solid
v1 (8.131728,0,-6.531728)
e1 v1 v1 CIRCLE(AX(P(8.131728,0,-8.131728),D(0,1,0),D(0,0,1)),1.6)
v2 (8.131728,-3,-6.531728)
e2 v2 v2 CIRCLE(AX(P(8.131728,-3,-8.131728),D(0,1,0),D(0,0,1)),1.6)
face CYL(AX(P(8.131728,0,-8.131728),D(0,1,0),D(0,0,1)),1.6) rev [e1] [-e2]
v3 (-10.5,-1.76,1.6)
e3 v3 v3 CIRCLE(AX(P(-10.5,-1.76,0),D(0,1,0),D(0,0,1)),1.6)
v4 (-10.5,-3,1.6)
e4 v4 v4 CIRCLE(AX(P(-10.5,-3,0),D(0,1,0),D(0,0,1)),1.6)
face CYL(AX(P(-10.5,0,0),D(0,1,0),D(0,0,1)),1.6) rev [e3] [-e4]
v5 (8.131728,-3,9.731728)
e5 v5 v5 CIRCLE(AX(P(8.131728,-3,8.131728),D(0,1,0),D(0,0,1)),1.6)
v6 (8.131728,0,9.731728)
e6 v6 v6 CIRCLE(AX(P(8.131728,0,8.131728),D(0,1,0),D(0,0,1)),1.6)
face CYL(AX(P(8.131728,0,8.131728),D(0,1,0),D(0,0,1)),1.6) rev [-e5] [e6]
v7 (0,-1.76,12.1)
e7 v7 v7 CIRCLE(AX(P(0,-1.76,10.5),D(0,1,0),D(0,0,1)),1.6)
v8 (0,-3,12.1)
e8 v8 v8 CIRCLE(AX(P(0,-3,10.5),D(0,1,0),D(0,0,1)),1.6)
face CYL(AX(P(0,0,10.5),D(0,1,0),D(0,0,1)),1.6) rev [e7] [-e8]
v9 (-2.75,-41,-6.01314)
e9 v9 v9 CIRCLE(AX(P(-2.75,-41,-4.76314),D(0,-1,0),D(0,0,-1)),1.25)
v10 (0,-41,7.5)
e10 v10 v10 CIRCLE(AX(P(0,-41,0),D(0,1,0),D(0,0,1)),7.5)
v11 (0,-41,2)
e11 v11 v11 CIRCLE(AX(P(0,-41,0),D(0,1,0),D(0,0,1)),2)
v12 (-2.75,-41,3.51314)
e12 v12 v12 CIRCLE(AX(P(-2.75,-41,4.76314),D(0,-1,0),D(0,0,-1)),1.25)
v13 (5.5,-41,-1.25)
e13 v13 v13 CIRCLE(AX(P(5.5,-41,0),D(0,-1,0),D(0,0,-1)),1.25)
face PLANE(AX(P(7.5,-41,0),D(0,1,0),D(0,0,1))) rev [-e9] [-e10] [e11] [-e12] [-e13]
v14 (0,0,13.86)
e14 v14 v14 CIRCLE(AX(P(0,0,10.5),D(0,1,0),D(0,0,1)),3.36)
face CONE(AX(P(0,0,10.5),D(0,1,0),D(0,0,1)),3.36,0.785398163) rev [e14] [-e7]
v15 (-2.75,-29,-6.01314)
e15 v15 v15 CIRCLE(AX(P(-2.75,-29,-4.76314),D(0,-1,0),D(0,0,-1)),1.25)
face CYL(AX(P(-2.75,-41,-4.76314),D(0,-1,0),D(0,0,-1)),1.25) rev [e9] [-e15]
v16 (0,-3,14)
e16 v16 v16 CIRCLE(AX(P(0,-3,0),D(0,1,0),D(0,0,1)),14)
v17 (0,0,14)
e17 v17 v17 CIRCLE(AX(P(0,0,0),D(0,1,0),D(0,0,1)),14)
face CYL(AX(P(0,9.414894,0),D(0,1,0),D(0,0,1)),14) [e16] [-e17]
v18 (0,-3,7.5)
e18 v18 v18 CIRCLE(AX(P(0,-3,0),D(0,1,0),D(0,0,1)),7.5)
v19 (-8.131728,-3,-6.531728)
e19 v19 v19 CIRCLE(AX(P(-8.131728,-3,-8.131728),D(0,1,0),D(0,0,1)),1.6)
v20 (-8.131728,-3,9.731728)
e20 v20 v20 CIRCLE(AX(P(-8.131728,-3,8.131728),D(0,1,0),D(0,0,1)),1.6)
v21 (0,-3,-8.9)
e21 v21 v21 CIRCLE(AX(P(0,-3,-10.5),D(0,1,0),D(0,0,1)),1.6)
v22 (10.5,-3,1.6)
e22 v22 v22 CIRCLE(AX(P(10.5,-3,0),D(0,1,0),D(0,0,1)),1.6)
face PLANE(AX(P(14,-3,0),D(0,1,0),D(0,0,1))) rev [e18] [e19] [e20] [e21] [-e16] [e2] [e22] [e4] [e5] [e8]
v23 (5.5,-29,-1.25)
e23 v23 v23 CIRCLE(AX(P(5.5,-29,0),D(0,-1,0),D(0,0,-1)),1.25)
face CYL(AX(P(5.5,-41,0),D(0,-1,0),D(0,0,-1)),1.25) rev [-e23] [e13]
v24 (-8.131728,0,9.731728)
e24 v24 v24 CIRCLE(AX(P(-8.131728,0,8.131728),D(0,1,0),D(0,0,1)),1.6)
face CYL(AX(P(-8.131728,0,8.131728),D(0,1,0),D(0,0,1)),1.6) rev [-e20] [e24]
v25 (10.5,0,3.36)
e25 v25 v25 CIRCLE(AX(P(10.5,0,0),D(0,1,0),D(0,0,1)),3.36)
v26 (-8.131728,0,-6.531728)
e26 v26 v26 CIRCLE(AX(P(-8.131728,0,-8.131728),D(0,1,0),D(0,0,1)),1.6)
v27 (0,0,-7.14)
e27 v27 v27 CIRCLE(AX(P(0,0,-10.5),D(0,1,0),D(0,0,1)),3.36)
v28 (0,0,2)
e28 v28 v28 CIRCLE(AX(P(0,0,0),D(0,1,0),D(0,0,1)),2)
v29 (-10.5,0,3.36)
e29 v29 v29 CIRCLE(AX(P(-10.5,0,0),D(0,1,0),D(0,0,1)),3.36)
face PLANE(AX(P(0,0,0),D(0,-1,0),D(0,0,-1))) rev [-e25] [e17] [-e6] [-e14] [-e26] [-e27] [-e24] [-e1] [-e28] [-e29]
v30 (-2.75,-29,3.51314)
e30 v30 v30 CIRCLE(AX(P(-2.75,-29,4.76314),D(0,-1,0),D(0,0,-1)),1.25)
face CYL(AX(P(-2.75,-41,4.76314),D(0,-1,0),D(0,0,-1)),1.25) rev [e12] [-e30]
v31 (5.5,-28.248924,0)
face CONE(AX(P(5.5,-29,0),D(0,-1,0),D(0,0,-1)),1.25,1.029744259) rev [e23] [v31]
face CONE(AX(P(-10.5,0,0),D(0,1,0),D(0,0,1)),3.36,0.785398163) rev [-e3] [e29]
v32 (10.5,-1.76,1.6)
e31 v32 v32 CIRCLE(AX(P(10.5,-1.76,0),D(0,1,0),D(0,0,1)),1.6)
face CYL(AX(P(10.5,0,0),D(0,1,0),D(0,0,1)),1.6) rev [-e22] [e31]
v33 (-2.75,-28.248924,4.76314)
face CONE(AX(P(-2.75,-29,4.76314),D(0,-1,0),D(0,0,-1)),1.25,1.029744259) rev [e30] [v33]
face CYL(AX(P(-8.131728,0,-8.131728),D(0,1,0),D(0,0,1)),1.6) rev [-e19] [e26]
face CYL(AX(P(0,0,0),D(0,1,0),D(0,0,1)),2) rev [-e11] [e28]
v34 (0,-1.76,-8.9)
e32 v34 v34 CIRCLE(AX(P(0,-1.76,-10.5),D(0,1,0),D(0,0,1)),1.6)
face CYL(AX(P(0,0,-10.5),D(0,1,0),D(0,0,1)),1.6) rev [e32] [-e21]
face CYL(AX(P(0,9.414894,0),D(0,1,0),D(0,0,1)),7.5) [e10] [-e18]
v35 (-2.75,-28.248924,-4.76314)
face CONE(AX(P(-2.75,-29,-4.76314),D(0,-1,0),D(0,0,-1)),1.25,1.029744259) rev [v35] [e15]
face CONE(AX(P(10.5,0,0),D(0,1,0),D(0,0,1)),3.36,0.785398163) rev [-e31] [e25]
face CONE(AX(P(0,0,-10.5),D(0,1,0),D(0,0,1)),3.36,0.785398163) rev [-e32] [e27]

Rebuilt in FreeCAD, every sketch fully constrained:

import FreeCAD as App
import Part
import Sketcher

V = App.Vector
Q = App.Units.Quantity

doc = App.newDocument("Part")
params = doc.addObject("Spreadsheet::Sheet", "Params")
for row, (alias, value) in enumerate([
    ("sketch1_width", "14 mm"),
    ("sketch1_height", "41 mm"),
    ("sketch1_height2", "38 mm"),
    ("sketch1_width2", "7.5 mm"),
    ("revolution_angle", "360 deg"),
    ("sketch2_diameter", "4 mm"),
    ("hole_diameter", "4 mm"),
    ("hole_depth", "41 mm"),
    ("sketch3_width", "12 mm"),
    ("sketch3_height", "1.25 mm"),
    ("groove_angle", "360 deg"),
    ("sketch4_height", "1.6 mm"),
    ("sketch4_height2", "3.36 mm"),
    ("groove2_angle", "360 deg"),
    ("sketch5_diameter", "3.2 mm"),
    ("hole2_diameter", "3.2 mm"),
    ("hole2_depth", "3.001 mm"),
], start=1):
    params.set(f"A{row}", alias)
    params.set(f"B{row}", "=" + value)
    params.setAlias(f"B{row}", alias)

body = doc.addObject("PartDesign::Body", "Body")

# Sketch on XY plane
sketch1 = doc.addObject("Sketcher::SketchObject", "Sketch")
body.addObject(sketch1)
sketch1.AttachmentSupport = (doc.XY_Plane, [""])
sketch1.MapMode = "FlatFace"
sketch1.addGeometry([
    Part.LineSegment(V(14, 0, 0), V(0, 0, 0)),  # 0
    Part.LineSegment(V(0, 0, 0), V(0, -41, 0)),  # 1
    Part.LineSegment(V(0, -41, 0), V(7.5, -41, 0)),  # 2
    Part.LineSegment(V(7.5, -41, 0), V(7.5, -3, 0)),  # 3
    Part.LineSegment(V(7.5, -3, 0), V(14, -3, 0)),  # 4
    Part.LineSegment(V(14, -3, 0), V(14, 0, 0)),  # 5
], False)
sketch1.addConstraint([
    Sketcher.Constraint("Coincident", 0, 2, 1, 1),
    Sketcher.Constraint("Coincident", 1, 2, 2, 1),
    Sketcher.Constraint("Coincident", 2, 2, 3, 1),
    Sketcher.Constraint("Coincident", 3, 2, 4, 1),
    Sketcher.Constraint("Coincident", 4, 2, 5, 1),
    Sketcher.Constraint("Coincident", 5, 2, 0, 1),
    Sketcher.Constraint("Horizontal", 0),
    Sketcher.Constraint("Vertical", 1),
    Sketcher.Constraint("Horizontal", 2),
    Sketcher.Constraint("Vertical", 3),
    Sketcher.Constraint("Horizontal", 4),
    Sketcher.Constraint("Vertical", 5),
    Sketcher.Constraint("Coincident", 0, 2, -1, 1),
    Sketcher.Constraint("DistanceX", 0, 2, 0, 1, 14.0),
    Sketcher.Constraint("DistanceY", 1, 2, 1, 1, 41.0),
    Sketcher.Constraint("DistanceY", 3, 1, 3, 2, 38.0),
    Sketcher.Constraint("DistanceX", 2, 1, 2, 2, 7.5),
])
sketch1.setExpression("Constraints[13]", "Params.sketch1_width")
sketch1.setExpression("Constraints[14]", "Params.sketch1_height")
sketch1.setExpression("Constraints[15]", "Params.sketch1_height2")
sketch1.setExpression("Constraints[16]", "Params.sketch1_width2")
revolution = doc.addObject("PartDesign::Revolution", "Revolution")
body.addObject(revolution)
revolution.Profile = sketch1
revolution.ReferenceAxis = (sketch1, ["V_Axis"])
revolution.setExpression("Angle", "Params.revolution_angle")

# Sketch on XZ plane
sketch2 = doc.addObject("Sketcher::SketchObject", "Sketch001")
body.addObject(sketch2)
sketch2.AttachmentSupport = (doc.XZ_Plane, [""])
sketch2.MapMode = "FlatFace"
sketch2.addGeometry(Part.Circle(V(0, 0, 0), V(0, 0, 1), 2), False)
sketch2.addConstraint([
    Sketcher.Constraint("Coincident", 0, 3, -1, 1),
    Sketcher.Constraint("Diameter", 0, 4.0),
])
sketch2.setExpression("Constraints[1]", "Params.sketch2_diameter")
doc.recompute()
hole = doc.addObject("PartDesign::Hole", "Hole")
body.addObject(hole)
hole.Profile = sketch2
hole.ThreadType = "None"
hole.setExpression("Diameter", "Params.hole_diameter")
hole.DepthType = "Dimension"
hole.setExpression("Depth", "Params.hole_depth")
hole.DrillPoint = "Flat"
hole.Reversed = True

# Sketch on YZ plane
sketch3 = doc.addObject("Sketcher::SketchObject", "Sketch002")
body.addObject(sketch3)
sketch3.AttachmentSupport = (doc.YZ_Plane, [""])
sketch3.MapMode = "FlatFace"
sketch3.AttachmentOffset = App.Placement(V(0, 0, 5.5), App.Rotation())
sketch3.addGeometry([
    Part.LineSegment(V(-28.248924, 0, 0), V(-41, 0, 0)),
    Part.LineSegment(V(-41, 0, 0), V(-41, -1.25, 0)),
    Part.LineSegment(V(-41, -1.25, 0), V(-29, -1.25, 0)),
    Part.LineSegment(V(-29, -1.25, 0), V(-28.248924, 0, 0)),
], False)
sketch3.addConstraint([
    Sketcher.Constraint("Coincident", 0, 2, 1, 1),
    Sketcher.Constraint("Coincident", 1, 2, 2, 1),
    Sketcher.Constraint("Coincident", 2, 2, 3, 1),
    Sketcher.Constraint("Coincident", 3, 2, 0, 1),
    Sketcher.Constraint("Horizontal", 0),
    Sketcher.Constraint("Vertical", 1),
    Sketcher.Constraint("Horizontal", 2),
    Sketcher.Constraint("PointOnObject", 0, 2, -1),
    Sketcher.Constraint("DistanceX", 2, 1, 2, 2, 12.0),
    Sketcher.Constraint("Angle", 3, Q("59 deg")),
    Sketcher.Constraint("DistanceX", 0, 2, -1, 1, 41.0),
    Sketcher.Constraint("DistanceY", 1, 2, 1, 1, 1.25),
])
sketch3.setExpression("Constraints[8]", "Params.sketch3_width")
sketch3.setExpression("Constraints[11]", "Params.sketch3_height")
groove = doc.addObject("PartDesign::Groove", "Groove")
body.addObject(groove)
groove.Profile = sketch3
groove.ReferenceAxis = (sketch3, ["H_Axis"])
groove.setExpression("Angle", "Params.groove_angle")
doc.recompute()

polarpattern = doc.addObject("PartDesign::PolarPattern", "PolarPattern")
body.addObject(polarpattern)
polarpattern.Originals = [groove]
polarpattern.Axis = (doc.Y_Axis, [""])
polarpattern.Angle = 360
polarpattern.Occurrences = 3
body.Tip = polarpattern

# Sketch on YZ plane
sketch4 = doc.addObject("Sketcher::SketchObject", "Sketch003")
body.addObject(sketch4)
sketch4.AttachmentSupport = (doc.YZ_Plane, [""])
sketch4.MapMode = "FlatFace"
sketch4.addGeometry([
    Part.LineSegment(V(-3.001, -10.5, 0), V(0, -10.5, 0)),  # 0
    Part.LineSegment(V(0, -10.5, 0), V(0, -7.14, 0)),  # 1
    Part.LineSegment(V(0, -7.14, 0), V(-1.76, -8.9, 0)),  # 2
    Part.LineSegment(V(-1.76, -8.9, 0), V(-3.001, -8.9, 0)),  # 3
    Part.LineSegment(V(-3.001, -8.9, 0), V(-3.001, -10.5, 0)),  # 4
], False)
sketch4.addGeometry(Part.LineSegment(V(0, -10.5, 0), V(-3.001, -10.5, 0)), True)  # axis
sketch4.addConstraint([
    Sketcher.Constraint("Coincident", 0, 2, 1, 1),
    Sketcher.Constraint("Coincident", 1, 2, 2, 1),
    Sketcher.Constraint("Coincident", 2, 2, 3, 1),
    Sketcher.Constraint("Coincident", 3, 2, 4, 1),
    Sketcher.Constraint("Coincident", 4, 2, 0, 1),
    Sketcher.Constraint("Horizontal", 0),
    Sketcher.Constraint("Vertical", 1),
    Sketcher.Constraint("Horizontal", 3),
    Sketcher.Constraint("Vertical", 4),
    Sketcher.Constraint("Horizontal", 5),
    Sketcher.Constraint("Coincident", 5, 1, 0, 2),
    Sketcher.Constraint("PointOnObject", 0, 2, -2),
    Sketcher.Constraint("Vertical", 3, 2, 5, 2),
    Sketcher.Constraint("Angle", 2, Q("-135 deg")),
    Sketcher.Constraint("DistanceY", 4, 2, 4, 1, 1.6),
    Sketcher.Constraint("DistanceY", 1, 1, 1, 2, 3.36),
    Sketcher.Constraint("DistanceY", 0, 2, -1, 1, 10.5),
    Sketcher.Constraint("DistanceX", 0, 1, 0, 2, 3.001),
])
sketch4.setExpression("Constraints[14]", "Params.sketch4_height")
sketch4.setExpression("Constraints[15]", "Params.sketch4_height2")
groove2 = doc.addObject("PartDesign::Groove", "Groove001")
body.addObject(groove2)
groove2.Profile = sketch4
groove2.ReferenceAxis = (sketch4, ["Axis0"])
groove2.setExpression("Angle", "Params.groove2_angle")
doc.recompute()

polarpattern2 = doc.addObject("PartDesign::PolarPattern", "PolarPattern001")
body.addObject(polarpattern2)
polarpattern2.Originals = [groove2]
polarpattern2.Axis = (doc.Y_Axis, [""])
polarpattern2.Angle = 360
polarpattern2.Occurrences = 4
body.Tip = polarpattern2

# Sketch on XZ plane
sketch5 = doc.addObject("Sketcher::SketchObject", "Sketch004")
body.addObject(sketch5)
sketch5.AttachmentSupport = (doc.XZ_Plane, [""])
sketch5.MapMode = "FlatFace"
sketch5.addGeometry(Part.Circle(V(-8.131728, -8.131728, 0), V(0, 0, 1), 1.6), False)
sketch5.addConstraint([
    Sketcher.Constraint("Diameter", 0, 3.2),
    Sketcher.Constraint("DistanceX", 0, 3, -1, 1, 8.131728),
    Sketcher.Constraint("DistanceY", 0, 3, -1, 1, 8.131728),
])
sketch5.setExpression("Constraints[0]", "Params.sketch5_diameter")
doc.recompute()
hole2 = doc.addObject("PartDesign::Hole", "Hole001")
body.addObject(hole2)
hole2.Profile = sketch5
hole2.ThreadType = "None"
hole2.setExpression("Diameter", "Params.hole2_diameter")
hole2.DepthType = "Dimension"
hole2.setExpression("Depth", "Params.hole2_depth")
hole2.DrillPoint = "Flat"
hole2.Reversed = True
doc.recompute()

polarpattern3 = doc.addObject("PartDesign::PolarPattern", "PolarPattern002")
body.addObject(polarpattern3)
polarpattern3.Originals = [hole2]
polarpattern3.Axis = (doc.Y_Axis, [""])
polarpattern3.Angle = 360
polarpattern3.Occurrences = 4
body.Tip = polarpattern3

doc.recompute()
